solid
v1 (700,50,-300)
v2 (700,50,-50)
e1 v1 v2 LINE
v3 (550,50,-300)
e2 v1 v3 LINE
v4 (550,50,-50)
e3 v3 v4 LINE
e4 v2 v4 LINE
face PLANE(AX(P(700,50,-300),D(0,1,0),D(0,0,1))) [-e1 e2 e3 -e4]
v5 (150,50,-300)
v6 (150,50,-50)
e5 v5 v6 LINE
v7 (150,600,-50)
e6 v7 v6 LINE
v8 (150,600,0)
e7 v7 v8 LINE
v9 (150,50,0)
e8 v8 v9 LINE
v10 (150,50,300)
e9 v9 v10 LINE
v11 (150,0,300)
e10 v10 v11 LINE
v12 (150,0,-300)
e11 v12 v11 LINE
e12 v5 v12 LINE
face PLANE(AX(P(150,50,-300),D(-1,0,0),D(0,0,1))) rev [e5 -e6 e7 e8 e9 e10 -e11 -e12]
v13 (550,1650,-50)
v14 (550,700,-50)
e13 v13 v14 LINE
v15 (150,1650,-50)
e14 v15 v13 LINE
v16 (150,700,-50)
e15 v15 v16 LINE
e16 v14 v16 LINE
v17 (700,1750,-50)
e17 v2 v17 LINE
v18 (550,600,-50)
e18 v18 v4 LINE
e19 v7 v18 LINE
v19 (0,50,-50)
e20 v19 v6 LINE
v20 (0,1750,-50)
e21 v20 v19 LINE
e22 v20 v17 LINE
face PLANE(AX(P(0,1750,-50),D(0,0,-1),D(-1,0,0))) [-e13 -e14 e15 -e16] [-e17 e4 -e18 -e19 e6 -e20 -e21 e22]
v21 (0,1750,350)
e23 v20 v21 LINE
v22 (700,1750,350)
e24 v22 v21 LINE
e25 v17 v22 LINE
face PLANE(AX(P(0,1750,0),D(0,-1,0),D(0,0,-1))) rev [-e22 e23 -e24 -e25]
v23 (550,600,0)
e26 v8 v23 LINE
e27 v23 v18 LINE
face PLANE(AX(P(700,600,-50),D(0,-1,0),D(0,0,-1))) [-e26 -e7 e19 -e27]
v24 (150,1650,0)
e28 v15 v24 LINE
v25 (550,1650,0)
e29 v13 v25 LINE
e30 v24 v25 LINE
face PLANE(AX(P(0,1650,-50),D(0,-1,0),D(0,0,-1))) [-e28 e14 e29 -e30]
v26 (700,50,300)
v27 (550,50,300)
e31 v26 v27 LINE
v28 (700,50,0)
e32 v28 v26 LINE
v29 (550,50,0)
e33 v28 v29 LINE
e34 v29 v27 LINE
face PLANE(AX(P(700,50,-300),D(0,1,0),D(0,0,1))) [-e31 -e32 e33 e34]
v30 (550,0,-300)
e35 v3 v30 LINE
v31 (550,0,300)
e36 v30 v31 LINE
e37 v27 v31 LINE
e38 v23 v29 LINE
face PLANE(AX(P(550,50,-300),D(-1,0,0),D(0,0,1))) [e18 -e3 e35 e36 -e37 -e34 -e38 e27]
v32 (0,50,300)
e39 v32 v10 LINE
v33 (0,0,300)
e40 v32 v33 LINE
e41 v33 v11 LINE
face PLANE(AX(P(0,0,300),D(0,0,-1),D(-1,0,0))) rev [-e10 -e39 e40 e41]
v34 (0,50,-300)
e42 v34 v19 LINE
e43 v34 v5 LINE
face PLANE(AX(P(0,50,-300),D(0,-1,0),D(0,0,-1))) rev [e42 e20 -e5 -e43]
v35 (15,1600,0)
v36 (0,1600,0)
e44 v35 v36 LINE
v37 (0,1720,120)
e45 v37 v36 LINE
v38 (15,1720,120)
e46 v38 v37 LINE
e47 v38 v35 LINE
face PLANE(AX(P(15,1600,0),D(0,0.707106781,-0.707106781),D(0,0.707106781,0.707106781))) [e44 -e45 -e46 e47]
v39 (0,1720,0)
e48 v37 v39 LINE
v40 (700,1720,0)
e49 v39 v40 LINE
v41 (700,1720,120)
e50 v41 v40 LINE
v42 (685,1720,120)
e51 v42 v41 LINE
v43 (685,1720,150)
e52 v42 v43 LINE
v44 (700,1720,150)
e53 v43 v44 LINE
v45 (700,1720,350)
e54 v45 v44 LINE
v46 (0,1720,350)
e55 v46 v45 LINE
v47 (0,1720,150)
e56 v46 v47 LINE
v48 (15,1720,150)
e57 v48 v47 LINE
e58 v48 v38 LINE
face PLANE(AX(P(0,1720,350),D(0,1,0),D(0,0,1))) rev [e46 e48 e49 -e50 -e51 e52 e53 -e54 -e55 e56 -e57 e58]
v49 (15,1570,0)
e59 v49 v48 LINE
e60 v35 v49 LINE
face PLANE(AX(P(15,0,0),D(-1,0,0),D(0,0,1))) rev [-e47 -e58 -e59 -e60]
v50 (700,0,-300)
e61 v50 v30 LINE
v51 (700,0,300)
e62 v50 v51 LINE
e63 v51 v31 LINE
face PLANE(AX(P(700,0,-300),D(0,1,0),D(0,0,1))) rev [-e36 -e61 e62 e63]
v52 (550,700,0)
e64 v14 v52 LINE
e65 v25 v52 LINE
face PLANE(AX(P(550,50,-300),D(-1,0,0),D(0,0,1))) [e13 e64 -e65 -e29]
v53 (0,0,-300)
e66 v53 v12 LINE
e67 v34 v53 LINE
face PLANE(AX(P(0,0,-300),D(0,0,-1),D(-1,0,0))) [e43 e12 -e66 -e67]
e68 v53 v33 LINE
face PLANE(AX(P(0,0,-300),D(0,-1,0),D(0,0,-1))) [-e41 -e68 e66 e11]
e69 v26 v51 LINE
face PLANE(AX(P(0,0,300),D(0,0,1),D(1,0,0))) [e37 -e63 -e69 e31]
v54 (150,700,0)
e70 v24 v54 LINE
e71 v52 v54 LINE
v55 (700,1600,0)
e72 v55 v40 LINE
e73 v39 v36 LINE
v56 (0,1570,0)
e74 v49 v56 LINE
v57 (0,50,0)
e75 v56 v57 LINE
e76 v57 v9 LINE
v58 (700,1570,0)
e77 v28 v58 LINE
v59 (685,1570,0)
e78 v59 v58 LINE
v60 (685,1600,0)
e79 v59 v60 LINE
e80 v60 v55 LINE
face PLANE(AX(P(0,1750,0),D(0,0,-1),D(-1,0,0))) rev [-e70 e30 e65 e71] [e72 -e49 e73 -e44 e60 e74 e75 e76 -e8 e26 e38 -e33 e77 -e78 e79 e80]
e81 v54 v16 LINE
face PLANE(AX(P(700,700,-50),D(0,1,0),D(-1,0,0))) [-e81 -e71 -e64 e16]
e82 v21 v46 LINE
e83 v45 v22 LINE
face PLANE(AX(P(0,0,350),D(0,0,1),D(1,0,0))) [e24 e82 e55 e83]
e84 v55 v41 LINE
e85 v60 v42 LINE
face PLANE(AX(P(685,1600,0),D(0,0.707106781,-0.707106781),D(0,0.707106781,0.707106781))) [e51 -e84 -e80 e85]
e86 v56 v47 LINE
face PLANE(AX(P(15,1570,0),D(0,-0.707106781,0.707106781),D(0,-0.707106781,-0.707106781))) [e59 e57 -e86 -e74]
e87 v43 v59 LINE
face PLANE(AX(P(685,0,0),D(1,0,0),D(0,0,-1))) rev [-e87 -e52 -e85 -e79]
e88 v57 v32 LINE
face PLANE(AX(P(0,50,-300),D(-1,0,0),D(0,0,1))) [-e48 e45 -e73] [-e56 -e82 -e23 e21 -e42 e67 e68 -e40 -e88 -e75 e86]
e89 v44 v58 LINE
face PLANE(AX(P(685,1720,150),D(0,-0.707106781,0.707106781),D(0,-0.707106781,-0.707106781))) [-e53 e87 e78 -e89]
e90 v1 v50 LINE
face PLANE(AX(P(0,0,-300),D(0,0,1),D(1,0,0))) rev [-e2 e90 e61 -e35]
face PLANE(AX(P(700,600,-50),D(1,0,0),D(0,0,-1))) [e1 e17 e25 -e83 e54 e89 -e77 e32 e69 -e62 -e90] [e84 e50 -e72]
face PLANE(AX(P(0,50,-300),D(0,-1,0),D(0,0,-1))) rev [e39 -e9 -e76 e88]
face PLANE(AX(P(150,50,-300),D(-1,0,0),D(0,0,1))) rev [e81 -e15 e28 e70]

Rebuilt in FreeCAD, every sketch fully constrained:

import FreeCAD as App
import Part
import Sketcher


def add_polygon(sketch, points):
    """Adds a closed chain of lines whose ends are joined by coincident constraints."""
    first, n = sketch.GeometryCount, len(points)
    for a, b in zip(points, points[1:] + points[:1]):
        sketch.addGeometry(Part.LineSegment(App.Vector(*a, 0), App.Vector(*b, 0)), False)
    for i in range(n):
        sketch.addConstraint(Sketcher.Constraint("Coincident", first + i, 2, first + (i + 1) % n, 1))

doc = App.newDocument("Part")
body = doc.addObject("PartDesign::Body", "Body")

# Sketch on XY plane
sketch1 = body.newObject("Sketcher::SketchObject", "Sketch")
sketch1.AttachmentSupport = (doc.getObject("XY_Plane"), [""])
sketch1.MapMode = "FlatFace"
add_polygon(sketch1, [(0, 50), (0, 0), (150, 0), (150, 50)])  # lines 0-3
sketch1.addConstraint([
    Sketcher.Constraint("Vertical", 0),
    Sketcher.Constraint("Horizontal", 1),
    Sketcher.Constraint("Vertical", 2),
    Sketcher.Constraint("Horizontal", 3),
    Sketcher.Constraint("Coincident", 0, 2, -1, 1),
    Sketcher.Constraint("DistanceX", 1, 1, 1, 2, 150.0),
    Sketcher.Constraint("DistanceY", 0, 2, 0, 1, 50.0),
])
pad1 = body.newObject("PartDesign::Pad", "Pad")
pad1.Profile = sketch1
pad1.Type = "TwoLengths"
pad1.Length = 300
pad1.Length2 = 300
body2 = doc.addObject("PartDesign::Body", "Body001")

# Sketch on XY plane
sketch2 = body2.newObject("Sketcher::SketchObject", "Sketch001")
sketch2.AttachmentSupport = (doc.getObject("XY_Plane001"), [""])
sketch2.MapMode = "FlatFace"
add_polygon(sketch2, [(550, 50), (550, 0), (700, 0), (700, 50)])  # lines 0-3
sketch2.addConstraint([
    Sketcher.Constraint("Vertical", 0),
    Sketcher.Constraint("Horizontal", 1),
    Sketcher.Constraint("Vertical", 2),
    Sketcher.Constraint("Horizontal", 3),
    Sketcher.Constraint("PointOnObject", 0, 2, -1),
    Sketcher.Constraint("DistanceX", 1, 1, 1, 2, 150.0),
    Sketcher.Constraint("DistanceY", 0, 2, 0, 1, 50.0),
    Sketcher.Constraint("DistanceX", -1, 1, 0, 2, 550.0),
])
pad2 = body2.newObject("PartDesign::Pad", "Pad001")
pad2.Profile = sketch2
pad2.Type = "TwoLengths"
pad2.Length = 300
pad2.Length2 = 300
body.AllowCompound = True
doc.recompute()

boolean = body.newObject("PartDesign::Boolean", "Boolean")
boolean.Type = "Fuse"
boolean.addObjects([body2])

# Sketch on XZ plane
sketch3 = body.newObject("Sketcher::SketchObject", "Sketch002")
sketch3.AttachmentSupport = (doc.getObject("XZ_Plane"), [""])
sketch3.MapMode = "FlatFace"
sketch3.AttachmentOffset = App.Placement(App.Vector(0, 0, -50), App.Rotation())
add_polygon(sketch3, [(0, -50), (0, 0), (150, 0), (150, -50)])  # lines 0-3
add_polygon(sketch3, [(550, -50), (550, 0), (700, 0), (700, -50)])  # lines 4-7
sketch3.addConstraint([
    Sketcher.Constraint("Vertical", 0),
    Sketcher.Constraint("Horizontal", 1),
    Sketcher.Constraint("Vertical", 2),
    Sketcher.Constraint("Horizontal", 3),
    Sketcher.Constraint("Vertical", 4),
    Sketcher.Constraint("Horizontal", 5),
    Sketcher.Constraint("Vertical", 6),
    Sketcher.Constraint("Horizontal", 7),
    Sketcher.Constraint("Coincident", 0, 2, -1, 1),
    Sketcher.Constraint("PointOnObject", 4, 2, -1),
    Sketcher.Constraint("Horizontal", 3, 2, 6, 2),
    Sketcher.Constraint("Equal", 3, 5),
    Sketcher.Constraint("DistanceX", 1, 1, 1, 2, 150.0),
    Sketcher.Constraint("DistanceY", 0, 1, 0, 2, 50.0),
    Sketcher.Constraint("DistanceX", -1, 1, 4, 2, 550.0),
])
pad3 = body.newObject("PartDesign::Pad", "Pad002")
pad3.Profile = sketch3
pad3.Length = 1700
pad3.Reversed = True

# Sketch on XY plane
sketch4 = body.newObject("Sketcher::SketchObject", "Sketch003")
sketch4.AttachmentSupport = (doc.getObject("XY_Plane"), [""])
sketch4.MapMode = "FlatFace"
add_polygon(sketch4, [(0, 700), (0, 600), (700, 600), (700, 700)])  # lines 0-3
add_polygon(sketch4, [(0, 1750), (0, 1650), (700, 1650), (700, 1750)])  # lines 4-7
sketch4.addConstraint([
    Sketcher.Constraint("Vertical", 0),
    Sketcher.Constraint("Horizontal", 1),
    Sketcher.Constraint("Vertical", 2),
    Sketcher.Constraint("Horizontal", 3),
    Sketcher.Constraint("Vertical", 4),
    Sketcher.Constraint("Horizontal", 5),
    Sketcher.Constraint("Vertical", 6),
    Sketcher.Constraint("Horizontal", 7),
    Sketcher.Constraint("PointOnObject", 0, 2, -2),
    Sketcher.Constraint("PointOnObject", 4, 2, -2),
    Sketcher.Constraint("Vertical", 2, 2, 5, 2),
    Sketcher.Constraint("Equal", 2, 4),
    Sketcher.Constraint("DistanceX", 1, 1, 1, 2, 700.0),
    Sketcher.Constraint("DistanceY", 0, 2, 0, 1, 100.0),
    Sketcher.Constraint("DistanceY", -1, 1, 0, 2, 600.0),
    Sketcher.Constraint("DistanceY", -1, 1, 4, 2, 1650.0),
])
pad4 = body.newObject("PartDesign::Pad", "Pad003")
pad4.Profile = sketch4
pad4.Length = 50
pad4.Reversed = True

# Sketch on XY plane
sketch5 = body.newObject("Sketcher::SketchObject", "Sketch004")
sketch5.AttachmentSupport = (doc.getObject("XY_Plane"), [""])
sketch5.MapMode = "FlatFace"
add_polygon(sketch5, [(0, 1750), (0, 1720), (700, 1720), (700, 1750)])  # lines 0-3
sketch5.addConstraint([
    Sketcher.Constraint("Vertical", 0),
    Sketcher.Constraint("Horizontal", 1),
    Sketcher.Constraint("Vertical", 2),
    Sketcher.Constraint("Horizontal", 3),
    Sketcher.Constraint("PointOnObject", 0, 2, -2),
    Sketcher.Constraint("DistanceX", 1, 1, 1, 2, 700.0),
    Sketcher.Constraint("DistanceY", 0, 2, 0, 1, 30.0),
    Sketcher.Constraint("DistanceY", -1, 1, 0, 2, 1720.0),
])
pad5 = body.newObject("PartDesign::Pad", "Pad004")
pad5.Profile = sketch5
pad5.Length = 350

# Sketch on YZ plane
sketch6 = body.newObject("Sketcher::SketchObject", "Sketch005")
sketch6.AttachmentSupport = (doc.getObject("YZ_Plane"), [""])
sketch6.MapMode = "FlatFace"
add_polygon(sketch6, [(1570, 0), (1720, 150), (1720, 120), (1600, 0)])  # lines 0-3
sketch6.addConstraint([
    Sketcher.Constraint("Vertical", 1),
    Sketcher.Constraint("Horizontal", 3),
    Sketcher.Constraint("PointOnObject", 2, 2, -1),
    Sketcher.Constraint("Parallel", 0, 2),
    Sketcher.Constraint("Equal", 3, 1),
    Sketcher.Constraint("DistanceX", 3, 2, 3, 1, 30.0),
    Sketcher.Constraint("DistanceX", -1, 1, 0, 2, 1720.0),
    Sketcher.Constraint("DistanceY", -1, 1, 0, 2, 150.0),
])
pad6 = body.newObject("PartDesign::Pad", "Pad005")
pad6.Profile = sketch6
pad6.Length = 15

# Sketch on YZ plane
sketch7 = body.newObject("Sketcher::SketchObject", "Sketch006")
sketch7.AttachmentSupport = (doc.getObject("YZ_Plane"), [""])
sketch7.MapMode = "FlatFace"
sketch7.AttachmentOffset = App.Placement(App.Vector(0, 0, 700), App.Rotation())
add_polygon(sketch7, [(1570, 0), (1600, 0), (1720, 120), (1720, 150)])  # lines 0-3
sketch7.addConstraint([
    Sketcher.Constraint("Horizontal", 0),
    Sketcher.Constraint("Vertical", 2),
    Sketcher.Constraint("PointOnObject", 0, 2, -1),
    Sketcher.Constraint("Parallel", 1, 3),
    Sketcher.Constraint("Equal", 0, 2),
    Sketcher.Constraint("DistanceX", 0, 1, 0, 2, 30.0),
    Sketcher.Constraint("DistanceX", -1, 1, 0, 2, 1600.0),
    Sketcher.Constraint("DistanceX", -1, 1, 1, 2, 1720.0),
])
pad7 = body.newObject("PartDesign::Pad", "Pad006")
pad7.Profile = sketch7
pad7.Length = 15
pad7.Reversed = True

doc.recompute()
